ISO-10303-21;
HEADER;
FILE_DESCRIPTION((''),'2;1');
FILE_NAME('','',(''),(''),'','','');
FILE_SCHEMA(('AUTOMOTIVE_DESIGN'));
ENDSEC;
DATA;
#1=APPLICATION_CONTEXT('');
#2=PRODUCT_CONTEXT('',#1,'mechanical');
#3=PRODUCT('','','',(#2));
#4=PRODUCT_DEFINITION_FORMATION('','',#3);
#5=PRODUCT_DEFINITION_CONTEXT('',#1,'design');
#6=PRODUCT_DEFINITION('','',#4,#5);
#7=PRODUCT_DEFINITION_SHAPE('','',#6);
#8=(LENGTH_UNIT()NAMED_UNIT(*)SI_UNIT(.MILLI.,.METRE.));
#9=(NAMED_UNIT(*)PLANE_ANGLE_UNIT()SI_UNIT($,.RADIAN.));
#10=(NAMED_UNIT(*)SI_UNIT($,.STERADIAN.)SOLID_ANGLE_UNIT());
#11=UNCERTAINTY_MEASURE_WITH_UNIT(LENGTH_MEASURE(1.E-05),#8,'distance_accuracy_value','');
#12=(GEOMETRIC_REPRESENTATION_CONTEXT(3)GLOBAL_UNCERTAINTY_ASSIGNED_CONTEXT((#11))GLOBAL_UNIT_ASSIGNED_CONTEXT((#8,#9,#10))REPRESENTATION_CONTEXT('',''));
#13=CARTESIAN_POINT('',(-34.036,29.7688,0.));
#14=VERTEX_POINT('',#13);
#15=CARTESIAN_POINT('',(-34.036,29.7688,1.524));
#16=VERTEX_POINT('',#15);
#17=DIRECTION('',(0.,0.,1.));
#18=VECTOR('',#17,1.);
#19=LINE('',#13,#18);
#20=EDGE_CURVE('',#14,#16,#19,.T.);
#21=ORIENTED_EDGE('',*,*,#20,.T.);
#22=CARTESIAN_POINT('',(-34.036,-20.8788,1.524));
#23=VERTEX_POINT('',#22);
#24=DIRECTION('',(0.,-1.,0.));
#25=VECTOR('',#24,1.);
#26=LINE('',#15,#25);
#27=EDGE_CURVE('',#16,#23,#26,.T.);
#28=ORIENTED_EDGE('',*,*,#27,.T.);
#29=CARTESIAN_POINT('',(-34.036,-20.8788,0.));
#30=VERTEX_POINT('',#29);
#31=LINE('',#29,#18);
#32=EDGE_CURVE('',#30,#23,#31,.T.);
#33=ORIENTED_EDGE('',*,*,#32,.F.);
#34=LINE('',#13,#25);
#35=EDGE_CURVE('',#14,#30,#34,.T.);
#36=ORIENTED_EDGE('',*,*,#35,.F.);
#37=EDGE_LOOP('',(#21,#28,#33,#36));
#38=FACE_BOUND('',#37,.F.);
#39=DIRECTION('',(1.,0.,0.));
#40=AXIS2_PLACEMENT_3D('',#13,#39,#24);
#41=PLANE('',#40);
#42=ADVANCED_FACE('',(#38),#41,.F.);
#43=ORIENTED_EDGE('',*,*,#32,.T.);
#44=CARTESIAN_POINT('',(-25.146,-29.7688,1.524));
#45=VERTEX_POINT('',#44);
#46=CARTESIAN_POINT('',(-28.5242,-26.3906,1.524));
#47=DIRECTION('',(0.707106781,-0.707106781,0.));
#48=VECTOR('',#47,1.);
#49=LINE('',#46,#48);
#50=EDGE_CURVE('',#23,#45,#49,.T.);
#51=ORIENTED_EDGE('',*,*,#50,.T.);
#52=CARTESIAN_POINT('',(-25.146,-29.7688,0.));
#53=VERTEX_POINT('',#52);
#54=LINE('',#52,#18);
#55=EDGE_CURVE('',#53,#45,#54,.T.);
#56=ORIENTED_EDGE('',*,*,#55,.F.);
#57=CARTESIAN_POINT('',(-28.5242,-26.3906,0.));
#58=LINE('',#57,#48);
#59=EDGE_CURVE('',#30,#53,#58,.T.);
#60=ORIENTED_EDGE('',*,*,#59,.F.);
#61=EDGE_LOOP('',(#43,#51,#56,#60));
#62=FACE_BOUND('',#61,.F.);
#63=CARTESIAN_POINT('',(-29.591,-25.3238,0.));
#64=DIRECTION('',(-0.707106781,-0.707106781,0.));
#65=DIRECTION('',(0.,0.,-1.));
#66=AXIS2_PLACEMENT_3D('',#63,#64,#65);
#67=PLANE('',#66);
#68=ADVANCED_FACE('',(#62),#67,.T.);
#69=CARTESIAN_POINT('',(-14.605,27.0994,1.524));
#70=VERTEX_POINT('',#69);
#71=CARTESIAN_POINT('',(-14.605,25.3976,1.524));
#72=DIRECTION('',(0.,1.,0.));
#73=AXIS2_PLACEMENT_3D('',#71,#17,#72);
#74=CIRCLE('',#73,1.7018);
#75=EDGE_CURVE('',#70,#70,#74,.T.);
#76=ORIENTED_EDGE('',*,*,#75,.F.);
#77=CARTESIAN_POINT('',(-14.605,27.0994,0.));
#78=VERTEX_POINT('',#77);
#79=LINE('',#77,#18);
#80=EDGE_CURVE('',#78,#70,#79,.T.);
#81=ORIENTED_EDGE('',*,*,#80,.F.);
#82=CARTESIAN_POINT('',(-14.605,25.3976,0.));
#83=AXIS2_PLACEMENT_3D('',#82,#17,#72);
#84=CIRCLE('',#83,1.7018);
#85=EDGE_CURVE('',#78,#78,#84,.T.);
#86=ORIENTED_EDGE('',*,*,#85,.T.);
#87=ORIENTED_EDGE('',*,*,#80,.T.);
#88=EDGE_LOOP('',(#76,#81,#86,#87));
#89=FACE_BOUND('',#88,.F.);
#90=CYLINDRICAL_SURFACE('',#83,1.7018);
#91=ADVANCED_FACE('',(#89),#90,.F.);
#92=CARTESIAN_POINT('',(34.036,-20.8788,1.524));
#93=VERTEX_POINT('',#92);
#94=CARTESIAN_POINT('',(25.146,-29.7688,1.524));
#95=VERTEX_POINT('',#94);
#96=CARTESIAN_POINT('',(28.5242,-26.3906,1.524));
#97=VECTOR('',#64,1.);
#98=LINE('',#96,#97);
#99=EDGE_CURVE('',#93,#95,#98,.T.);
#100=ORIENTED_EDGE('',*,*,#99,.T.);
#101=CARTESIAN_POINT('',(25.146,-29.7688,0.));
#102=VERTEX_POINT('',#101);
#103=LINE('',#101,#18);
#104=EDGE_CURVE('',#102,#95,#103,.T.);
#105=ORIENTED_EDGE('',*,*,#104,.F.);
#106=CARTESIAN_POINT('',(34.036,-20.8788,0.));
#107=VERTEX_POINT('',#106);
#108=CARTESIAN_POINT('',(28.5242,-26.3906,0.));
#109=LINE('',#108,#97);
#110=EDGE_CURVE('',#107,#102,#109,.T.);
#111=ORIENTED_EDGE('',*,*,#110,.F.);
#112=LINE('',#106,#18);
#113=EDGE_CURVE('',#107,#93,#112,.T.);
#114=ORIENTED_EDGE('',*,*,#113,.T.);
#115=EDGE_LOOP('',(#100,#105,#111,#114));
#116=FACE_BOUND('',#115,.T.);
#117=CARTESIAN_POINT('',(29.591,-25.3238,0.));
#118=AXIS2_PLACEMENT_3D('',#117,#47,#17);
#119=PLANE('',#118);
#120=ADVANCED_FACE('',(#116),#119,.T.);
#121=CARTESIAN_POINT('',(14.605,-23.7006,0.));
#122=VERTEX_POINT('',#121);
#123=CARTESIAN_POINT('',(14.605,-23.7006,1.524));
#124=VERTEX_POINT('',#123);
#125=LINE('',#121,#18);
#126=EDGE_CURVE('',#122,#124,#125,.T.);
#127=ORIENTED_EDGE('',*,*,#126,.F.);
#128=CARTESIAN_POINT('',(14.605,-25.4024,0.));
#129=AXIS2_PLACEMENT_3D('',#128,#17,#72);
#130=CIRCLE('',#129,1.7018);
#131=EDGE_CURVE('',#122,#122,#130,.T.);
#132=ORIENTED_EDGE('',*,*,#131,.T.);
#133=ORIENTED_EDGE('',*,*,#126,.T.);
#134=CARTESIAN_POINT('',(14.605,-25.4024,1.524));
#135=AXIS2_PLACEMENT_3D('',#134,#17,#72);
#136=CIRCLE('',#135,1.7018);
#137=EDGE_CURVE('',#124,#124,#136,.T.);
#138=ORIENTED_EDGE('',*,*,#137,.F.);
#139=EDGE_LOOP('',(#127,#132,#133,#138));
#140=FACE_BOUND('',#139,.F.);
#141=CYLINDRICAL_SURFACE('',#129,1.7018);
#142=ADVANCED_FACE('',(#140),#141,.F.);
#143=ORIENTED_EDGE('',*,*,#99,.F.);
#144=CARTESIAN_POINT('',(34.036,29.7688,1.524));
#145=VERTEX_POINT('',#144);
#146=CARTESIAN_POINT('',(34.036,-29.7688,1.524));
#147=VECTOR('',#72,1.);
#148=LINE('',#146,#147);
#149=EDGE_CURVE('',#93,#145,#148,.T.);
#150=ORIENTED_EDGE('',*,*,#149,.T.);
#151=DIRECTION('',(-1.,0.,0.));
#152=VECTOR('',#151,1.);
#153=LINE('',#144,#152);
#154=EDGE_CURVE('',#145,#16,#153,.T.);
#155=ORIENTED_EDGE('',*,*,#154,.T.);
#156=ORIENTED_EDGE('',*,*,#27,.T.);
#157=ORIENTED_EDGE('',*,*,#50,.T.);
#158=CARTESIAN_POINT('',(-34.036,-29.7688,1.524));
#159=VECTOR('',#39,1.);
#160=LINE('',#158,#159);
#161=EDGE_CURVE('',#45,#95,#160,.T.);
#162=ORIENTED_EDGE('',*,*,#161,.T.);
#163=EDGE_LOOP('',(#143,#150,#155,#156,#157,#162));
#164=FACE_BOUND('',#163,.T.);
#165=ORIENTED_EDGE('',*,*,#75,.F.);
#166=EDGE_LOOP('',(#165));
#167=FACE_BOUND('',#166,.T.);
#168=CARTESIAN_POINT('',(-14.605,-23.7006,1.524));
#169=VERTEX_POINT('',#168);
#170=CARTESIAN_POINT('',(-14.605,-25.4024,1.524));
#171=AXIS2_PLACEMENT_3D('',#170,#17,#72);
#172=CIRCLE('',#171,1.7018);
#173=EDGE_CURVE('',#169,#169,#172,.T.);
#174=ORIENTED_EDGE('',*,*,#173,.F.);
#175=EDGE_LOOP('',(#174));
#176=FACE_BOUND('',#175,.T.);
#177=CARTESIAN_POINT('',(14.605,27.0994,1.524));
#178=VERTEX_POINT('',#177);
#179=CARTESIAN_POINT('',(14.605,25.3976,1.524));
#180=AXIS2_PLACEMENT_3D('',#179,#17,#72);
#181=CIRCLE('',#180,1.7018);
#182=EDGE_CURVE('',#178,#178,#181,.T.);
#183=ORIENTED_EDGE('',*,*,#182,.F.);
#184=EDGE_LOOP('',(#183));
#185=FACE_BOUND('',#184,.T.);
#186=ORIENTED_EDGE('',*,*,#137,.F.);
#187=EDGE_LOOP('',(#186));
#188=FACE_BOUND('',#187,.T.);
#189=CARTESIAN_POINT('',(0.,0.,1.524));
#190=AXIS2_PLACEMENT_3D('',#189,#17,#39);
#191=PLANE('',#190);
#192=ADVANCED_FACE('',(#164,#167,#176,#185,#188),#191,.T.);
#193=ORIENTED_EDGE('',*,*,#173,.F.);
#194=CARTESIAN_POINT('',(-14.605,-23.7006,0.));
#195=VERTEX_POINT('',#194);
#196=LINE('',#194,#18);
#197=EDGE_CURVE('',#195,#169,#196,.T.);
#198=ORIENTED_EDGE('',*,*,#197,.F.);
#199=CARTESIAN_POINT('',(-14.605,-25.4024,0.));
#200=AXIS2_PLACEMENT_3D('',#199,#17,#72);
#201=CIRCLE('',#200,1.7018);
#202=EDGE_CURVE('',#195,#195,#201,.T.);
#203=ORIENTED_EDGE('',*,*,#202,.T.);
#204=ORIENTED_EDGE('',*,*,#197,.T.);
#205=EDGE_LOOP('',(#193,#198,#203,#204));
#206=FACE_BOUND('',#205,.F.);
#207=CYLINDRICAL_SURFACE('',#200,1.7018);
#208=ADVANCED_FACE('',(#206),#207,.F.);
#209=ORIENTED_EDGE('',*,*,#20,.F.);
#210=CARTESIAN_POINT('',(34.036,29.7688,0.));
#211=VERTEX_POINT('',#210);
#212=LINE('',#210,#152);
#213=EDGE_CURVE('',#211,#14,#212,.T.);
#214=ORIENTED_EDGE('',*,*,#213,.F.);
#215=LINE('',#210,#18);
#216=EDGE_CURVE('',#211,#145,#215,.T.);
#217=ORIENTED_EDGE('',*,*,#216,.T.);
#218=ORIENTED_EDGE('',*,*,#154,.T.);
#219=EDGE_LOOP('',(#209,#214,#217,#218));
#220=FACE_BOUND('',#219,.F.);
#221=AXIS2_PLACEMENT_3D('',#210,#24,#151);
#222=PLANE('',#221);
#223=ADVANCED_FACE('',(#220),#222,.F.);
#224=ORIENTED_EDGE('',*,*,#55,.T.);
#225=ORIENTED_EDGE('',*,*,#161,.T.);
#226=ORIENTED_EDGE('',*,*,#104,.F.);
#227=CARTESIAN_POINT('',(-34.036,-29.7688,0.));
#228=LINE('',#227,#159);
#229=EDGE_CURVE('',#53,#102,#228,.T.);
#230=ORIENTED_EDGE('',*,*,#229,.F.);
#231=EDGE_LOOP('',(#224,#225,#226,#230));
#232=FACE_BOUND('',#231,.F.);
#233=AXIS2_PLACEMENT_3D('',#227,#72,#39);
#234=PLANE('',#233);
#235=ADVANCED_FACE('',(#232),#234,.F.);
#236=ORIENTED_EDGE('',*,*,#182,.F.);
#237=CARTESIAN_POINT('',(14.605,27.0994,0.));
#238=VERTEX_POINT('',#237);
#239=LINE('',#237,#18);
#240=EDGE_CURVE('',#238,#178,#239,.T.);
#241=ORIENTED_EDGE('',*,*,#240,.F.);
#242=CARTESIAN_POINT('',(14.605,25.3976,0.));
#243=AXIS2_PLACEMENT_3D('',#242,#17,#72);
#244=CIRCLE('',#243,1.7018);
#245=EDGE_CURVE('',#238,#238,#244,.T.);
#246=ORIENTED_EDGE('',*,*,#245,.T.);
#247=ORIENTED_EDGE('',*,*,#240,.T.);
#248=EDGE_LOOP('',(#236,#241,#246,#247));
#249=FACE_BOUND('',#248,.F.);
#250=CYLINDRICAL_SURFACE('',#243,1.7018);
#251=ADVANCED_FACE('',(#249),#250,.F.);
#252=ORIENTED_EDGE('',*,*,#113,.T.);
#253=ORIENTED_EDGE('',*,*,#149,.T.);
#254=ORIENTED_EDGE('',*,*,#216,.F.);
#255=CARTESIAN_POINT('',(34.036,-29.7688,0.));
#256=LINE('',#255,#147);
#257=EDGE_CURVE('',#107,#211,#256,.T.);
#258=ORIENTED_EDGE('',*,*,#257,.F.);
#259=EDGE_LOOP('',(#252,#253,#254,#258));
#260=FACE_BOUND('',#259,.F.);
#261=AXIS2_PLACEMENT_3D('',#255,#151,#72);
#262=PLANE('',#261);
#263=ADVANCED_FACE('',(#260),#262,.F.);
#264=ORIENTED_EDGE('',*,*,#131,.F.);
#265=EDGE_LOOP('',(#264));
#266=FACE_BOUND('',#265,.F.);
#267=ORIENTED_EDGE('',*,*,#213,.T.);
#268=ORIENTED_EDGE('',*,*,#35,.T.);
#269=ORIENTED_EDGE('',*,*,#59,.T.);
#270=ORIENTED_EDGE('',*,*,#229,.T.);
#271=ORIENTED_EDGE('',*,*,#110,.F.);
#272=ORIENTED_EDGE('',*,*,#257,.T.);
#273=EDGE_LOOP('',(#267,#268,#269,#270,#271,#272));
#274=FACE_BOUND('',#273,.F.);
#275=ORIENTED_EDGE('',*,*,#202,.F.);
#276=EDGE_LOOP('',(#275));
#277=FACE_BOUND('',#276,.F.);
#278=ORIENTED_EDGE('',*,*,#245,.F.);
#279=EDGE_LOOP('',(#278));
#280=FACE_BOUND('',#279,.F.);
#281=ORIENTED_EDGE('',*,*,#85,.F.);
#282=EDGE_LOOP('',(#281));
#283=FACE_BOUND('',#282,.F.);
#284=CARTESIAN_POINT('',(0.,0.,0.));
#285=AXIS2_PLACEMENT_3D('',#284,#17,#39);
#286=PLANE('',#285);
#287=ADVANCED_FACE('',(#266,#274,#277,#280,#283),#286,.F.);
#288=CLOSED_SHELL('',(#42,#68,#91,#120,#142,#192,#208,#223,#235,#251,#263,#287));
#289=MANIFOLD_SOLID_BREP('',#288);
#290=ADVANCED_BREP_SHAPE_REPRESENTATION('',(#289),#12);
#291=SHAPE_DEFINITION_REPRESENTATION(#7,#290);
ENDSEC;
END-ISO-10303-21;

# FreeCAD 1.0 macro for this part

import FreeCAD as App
import Part
import Sketcher

V = App.Vector
Q = App.Units.Quantity


def edges_at(feature, points):
    """Names of the edges that pass closest to the given points."""
    edges = feature.Shape.Edges
    near = lambda p: min(range(len(edges)), key=lambda i: edges[i].distToShape(Part.Vertex(*p))[0])
    return sorted({f"Edge{near(p) + 1}" for p in points})


def add_polygon(sketch, points):
    """Adds a closed chain of lines whose ends are joined by coincident constraints."""
    first, n = sketch.GeometryCount, len(points)
    for a, b in zip(points, points[1:] + points[:1]):
        sketch.addGeometry(Part.LineSegment(App.Vector(*a, 0), App.Vector(*b, 0)), False)
    for i in range(n):
        sketch.addConstraint(Sketcher.Constraint("Coincident", first + i, 2, first + (i + 1) % n, 1))

doc = App.newDocument("Part")
params = doc.addObject("Spreadsheet::Sheet", "Params")
for row, (alias, value) in enumerate([
    ("sketch1_width", "2.68 in"),
    ("sketch1_height", "2.344 in"),
    ("pad1_length", "0.06 in"),
    ("chamfer_size", "0.35 in"),
    ("sketch2_diameter", "0.134 in"),
    ("hole_diameter", "0.134 in"),
], start=1):
    params.set(f"A{row}", alias)
    params.set(f"B{row}", "=" + value)
    params.setAlias(f"B{row}", alias)

body = doc.addObject("PartDesign::Body", "Body")

# Sketch on XY plane
sketch1 = body.newObject("Sketcher::SketchObject", "Sketch")
sketch1.AttachmentSupport = (doc.getObject("XY_Plane"), [""])
sketch1.MapMode = "FlatFace"
add_polygon(sketch1, [(-34.036, 29.7688), (-34.036, -29.7688), (34.036, -29.7688), (34.036, 29.7688)])  # lines 0-3
sketch1.addConstraint([
    Sketcher.Constraint("Vertical", 0),
    Sketcher.Constraint("Horizontal", 1),
    Sketcher.Constraint("Vertical", 2),
    Sketcher.Constraint("Horizontal", 3),
    Sketcher.Constraint("Symmetric", 0, 2, 2, 2, -1, 1),
    Sketcher.Constraint("DistanceX", 1, 1, 1, 2, Q("2.68 in")),
    Sketcher.Constraint("DistanceY", 0, 2, 0, 1, Q("2.344 in")),
])
sketch1.setExpression("Constraints[9]", "Params.sketch1_width")
sketch1.setExpression("Constraints[10]", "Params.sketch1_height")
pad1 = body.newObject("PartDesign::Pad", "Pad")
pad1.Profile = sketch1
pad1.setExpression("Length", "Params.pad1_length")
doc.recompute()

chamfer = body.newObject("PartDesign::Chamfer", "Chamfer")
chamfer.Base = (pad1, edges_at(pad1, [(-34.036, -29.769, 0.762), (34.036, -29.769, 0.762)]))
chamfer.setExpression("Size", "Params.chamfer_size")

# Sketch on XY plane
sketch2 = body.newObject("Sketcher::SketchObject", "Sketch001")
sketch2.AttachmentSupport = (doc.getObject("XY_Plane"), [""])
sketch2.MapMode = "FlatFace"
sketch2.addGeometry([
    Part.Circle(V(14.605, -25.4024, 0), V(0, 0, 1), 1.7018),
    Part.Circle(V(-14.605, -25.4024, 0), V(0, 0, 1), 1.7018),
    Part.Circle(V(-14.605, 25.3976, 0), V(0, 0, 1), 1.7018),
    Part.Circle(V(14.605, 25.3976, 0), V(0, 0, 1), 1.7018),
], False)
sketch2.addConstraint([
    Sketcher.Constraint("Equal", 0, 1),
    Sketcher.Constraint("Equal", 1, 2),
    Sketcher.Constraint("Equal", 2, 3),
    Sketcher.Constraint("Symmetric", 0, 3, 1, 3, -2),
    Sketcher.Constraint("Symmetric", 2, 3, 3, 3, -2),
    Sketcher.Constraint("Vertical", 1, 3, 2, 3),
    Sketcher.Constraint("Diameter", 0, Q("0.134 in")),
    Sketcher.Constraint("DistanceY", 1, 3, 2, 3, Q("2 in")),
    Sketcher.Constraint("DistanceX", 1, 3, 0, 3, Q("1.15 in")),
    Sketcher.Constraint("DistanceY", 0, 3, -1, 1, Q("1.0001 in")),
])
sketch2.setExpression("Constraints[6]", "Params.sketch2_diameter")
doc.recompute()
hole = body.newObject("PartDesign::Hole", "Hole")
hole.Profile = sketch2
hole.ThreadType = "None"
hole.setExpression("Diameter", "Params.hole_diameter")
hole.DepthType = "ThroughAll"
hole.Reversed = True

doc.recompute()
